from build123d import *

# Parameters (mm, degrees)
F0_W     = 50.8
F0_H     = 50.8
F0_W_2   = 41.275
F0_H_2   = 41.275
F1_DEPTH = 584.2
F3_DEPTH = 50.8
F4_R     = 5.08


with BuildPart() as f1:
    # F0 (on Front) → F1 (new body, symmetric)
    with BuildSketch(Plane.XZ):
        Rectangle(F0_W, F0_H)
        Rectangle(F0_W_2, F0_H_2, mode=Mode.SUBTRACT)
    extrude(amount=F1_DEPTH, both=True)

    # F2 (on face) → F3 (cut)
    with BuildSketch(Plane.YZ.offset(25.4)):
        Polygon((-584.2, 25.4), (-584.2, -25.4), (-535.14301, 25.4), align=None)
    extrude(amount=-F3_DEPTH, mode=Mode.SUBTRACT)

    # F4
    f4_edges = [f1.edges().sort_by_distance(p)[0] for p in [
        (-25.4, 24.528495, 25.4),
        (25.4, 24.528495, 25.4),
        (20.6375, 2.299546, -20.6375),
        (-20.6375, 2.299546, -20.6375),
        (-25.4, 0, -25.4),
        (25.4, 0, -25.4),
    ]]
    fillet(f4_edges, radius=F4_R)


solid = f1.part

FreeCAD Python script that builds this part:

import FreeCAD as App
import Part
import Sketcher
Q = App.Units.Quantity


def edges_at(feature, points):
    """Names of the edges that pass closest to the given points."""
    edges = feature.Shape.Edges
    near = lambda p: min(range(len(edges)), key=lambda i: edges[i].distToShape(Part.Vertex(*p))[0])
    return sorted({f"Edge{near(p) + 1}" for p in points})


def add_polygon(sketch, points):
    """Adds a closed chain of lines whose ends are joined by coincident constraints."""
    first, n = sketch.GeometryCount, len(points)
    for a, b in zip(points, points[1:] + points[:1]):
        sketch.addGeometry(Part.LineSegment(App.Vector(*a, 0), App.Vector(*b, 0)), False)
    for i in range(n):
        sketch.addConstraint(Sketcher.Constraint("Coincident", first + i, 2, first + (i + 1) % n, 1))

doc = App.newDocument("Part")
params = doc.addObject("Spreadsheet::Sheet", "Params")
for row, (alias, value) in enumerate([
    ("sketch1_width", "2 in"),
    ("sketch1_width2", "1.625 in"),
    ("pad1_length", "46 in"),
    ("sketch2_height", "2 in"),
    ("pocket1_length", "2 in"),
    ("fillet_radius", "0.2 in"),
], start=1):
    params.set(f"A{row}", alias)
    params.set(f"B{row}", "=" + value)
    params.setAlias(f"B{row}", alias)

body = doc.addObject("PartDesign::Body", "Body")

# Sketch on XZ plane
sketch1 = body.newObject("Sketcher::SketchObject", "Sketch")
sketch1.AttachmentSupport = (doc.getObject("XZ_Plane"), [""])
sketch1.MapMode = "FlatFace"
add_polygon(sketch1, [(-25.4, 25.4), (-25.4, -25.4), (25.4, -25.4), (25.4, 25.4)])  # lines 0-3
add_polygon(sketch1, [(20.6375, -20.6375), (-20.6375, -20.6375), (-20.6375, 20.6375), (20.6375, 20.6375)])  # lines 4-7
sketch1.addConstraint(Sketcher.Constraint("Vertical", 0))
sketch1.addConstraint(Sketcher.Constraint("Horizontal", 1))
sketch1.addConstraint(Sketcher.Constraint("Vertical", 2))
sketch1.addConstraint(Sketcher.Constraint("Horizontal", 3))
sketch1.addConstraint(Sketcher.Constraint("Horizontal", 4))
sketch1.addConstraint(Sketcher.Constraint("Vertical", 5))
sketch1.addConstraint(Sketcher.Constraint("Horizontal", 6))
sketch1.addConstraint(Sketcher.Constraint("Vertical", 7))
sketch1.addConstraint(Sketcher.Constraint("Symmetric", 0, 2, 2, 2, -1, 1))
sketch1.addConstraint(Sketcher.Constraint("Symmetric", 4, 2, 6, 2, -1, 1))
sketch1.addConstraint(Sketcher.Constraint("Equal", 3, 0))
sketch1.addConstraint(Sketcher.Constraint("Equal", 6, 5))
sketch1.addConstraint(Sketcher.Constraint("DistanceX", 1, 1, 1, 2, Q("2 in")))
sketch1.addConstraint(Sketcher.Constraint("DistanceX", 4, 2, 4, 1, Q("1.625 in")))
sketch1.setExpression("Constraints[20]", "Params.sketch1_width")
sketch1.setExpression("Constraints[21]", "Params.sketch1_width2")
pad1 = body.newObject("PartDesign::Pad", "Pad")
pad1.Profile = sketch1
pad1.setExpression("Length", "Params.pad1_length")
pad1.Midplane = True

# Sketch on YZ plane
sketch2 = body.newObject("Sketcher::SketchObject", "Sketch001")
sketch2.AttachmentSupport = (doc.getObject("YZ_Plane"), [""])
sketch2.MapMode = "FlatFace"
sketch2.AttachmentOffset = App.Placement(App.Vector(0, 0, 1 * 25.4), App.Rotation())
add_polygon(sketch2, [(-584.2, 25.4), (-584.2, -25.4), (-535.14301, 25.4)])  # lines 0-2
sketch2.addConstraint(Sketcher.Constraint("Vertical", 0))
sketch2.addConstraint(Sketcher.Constraint("Horizontal", 2))
sketch2.addConstraint(Sketcher.Constraint("DistanceY", 0, 2, 0, 1, Q("2 in")))
sketch2.addConstraint(Sketcher.Constraint("DistanceX", 0, 2, -1, 1, Q("23 in")))
sketch2.addConstraint(Sketcher.Constraint("DistanceY", 0, 2, -1, 1, Q("1 in")))
sketch2.addConstraint(Sketcher.Constraint("Angle", 1, Q("46 deg")))
sketch2.setExpression("Constraints[5]", "Params.sketch2_height")
pocket1 = body.newObject("PartDesign::Pocket", "Pocket")
pocket1.Profile = sketch2
pocket1.setExpression("Length", "Params.pocket1_length")
doc.recompute()

fillet = body.newObject("PartDesign::Fillet", "Fillet")
fillet.Base = (pocket1, edges_at(pocket1, [
    (-25.4, 24.528, 25.4),
    (25.4, 24.528, 25.4),
    (20.637, 2.3, -20.637),
    (-20.637, 2.3, -20.637),
    (-25.4, 0, -25.4),
    (25.4, 0, -25.4),
]))
fillet.setExpression("Radius", "Params.fillet_radius")

doc.recompute()
